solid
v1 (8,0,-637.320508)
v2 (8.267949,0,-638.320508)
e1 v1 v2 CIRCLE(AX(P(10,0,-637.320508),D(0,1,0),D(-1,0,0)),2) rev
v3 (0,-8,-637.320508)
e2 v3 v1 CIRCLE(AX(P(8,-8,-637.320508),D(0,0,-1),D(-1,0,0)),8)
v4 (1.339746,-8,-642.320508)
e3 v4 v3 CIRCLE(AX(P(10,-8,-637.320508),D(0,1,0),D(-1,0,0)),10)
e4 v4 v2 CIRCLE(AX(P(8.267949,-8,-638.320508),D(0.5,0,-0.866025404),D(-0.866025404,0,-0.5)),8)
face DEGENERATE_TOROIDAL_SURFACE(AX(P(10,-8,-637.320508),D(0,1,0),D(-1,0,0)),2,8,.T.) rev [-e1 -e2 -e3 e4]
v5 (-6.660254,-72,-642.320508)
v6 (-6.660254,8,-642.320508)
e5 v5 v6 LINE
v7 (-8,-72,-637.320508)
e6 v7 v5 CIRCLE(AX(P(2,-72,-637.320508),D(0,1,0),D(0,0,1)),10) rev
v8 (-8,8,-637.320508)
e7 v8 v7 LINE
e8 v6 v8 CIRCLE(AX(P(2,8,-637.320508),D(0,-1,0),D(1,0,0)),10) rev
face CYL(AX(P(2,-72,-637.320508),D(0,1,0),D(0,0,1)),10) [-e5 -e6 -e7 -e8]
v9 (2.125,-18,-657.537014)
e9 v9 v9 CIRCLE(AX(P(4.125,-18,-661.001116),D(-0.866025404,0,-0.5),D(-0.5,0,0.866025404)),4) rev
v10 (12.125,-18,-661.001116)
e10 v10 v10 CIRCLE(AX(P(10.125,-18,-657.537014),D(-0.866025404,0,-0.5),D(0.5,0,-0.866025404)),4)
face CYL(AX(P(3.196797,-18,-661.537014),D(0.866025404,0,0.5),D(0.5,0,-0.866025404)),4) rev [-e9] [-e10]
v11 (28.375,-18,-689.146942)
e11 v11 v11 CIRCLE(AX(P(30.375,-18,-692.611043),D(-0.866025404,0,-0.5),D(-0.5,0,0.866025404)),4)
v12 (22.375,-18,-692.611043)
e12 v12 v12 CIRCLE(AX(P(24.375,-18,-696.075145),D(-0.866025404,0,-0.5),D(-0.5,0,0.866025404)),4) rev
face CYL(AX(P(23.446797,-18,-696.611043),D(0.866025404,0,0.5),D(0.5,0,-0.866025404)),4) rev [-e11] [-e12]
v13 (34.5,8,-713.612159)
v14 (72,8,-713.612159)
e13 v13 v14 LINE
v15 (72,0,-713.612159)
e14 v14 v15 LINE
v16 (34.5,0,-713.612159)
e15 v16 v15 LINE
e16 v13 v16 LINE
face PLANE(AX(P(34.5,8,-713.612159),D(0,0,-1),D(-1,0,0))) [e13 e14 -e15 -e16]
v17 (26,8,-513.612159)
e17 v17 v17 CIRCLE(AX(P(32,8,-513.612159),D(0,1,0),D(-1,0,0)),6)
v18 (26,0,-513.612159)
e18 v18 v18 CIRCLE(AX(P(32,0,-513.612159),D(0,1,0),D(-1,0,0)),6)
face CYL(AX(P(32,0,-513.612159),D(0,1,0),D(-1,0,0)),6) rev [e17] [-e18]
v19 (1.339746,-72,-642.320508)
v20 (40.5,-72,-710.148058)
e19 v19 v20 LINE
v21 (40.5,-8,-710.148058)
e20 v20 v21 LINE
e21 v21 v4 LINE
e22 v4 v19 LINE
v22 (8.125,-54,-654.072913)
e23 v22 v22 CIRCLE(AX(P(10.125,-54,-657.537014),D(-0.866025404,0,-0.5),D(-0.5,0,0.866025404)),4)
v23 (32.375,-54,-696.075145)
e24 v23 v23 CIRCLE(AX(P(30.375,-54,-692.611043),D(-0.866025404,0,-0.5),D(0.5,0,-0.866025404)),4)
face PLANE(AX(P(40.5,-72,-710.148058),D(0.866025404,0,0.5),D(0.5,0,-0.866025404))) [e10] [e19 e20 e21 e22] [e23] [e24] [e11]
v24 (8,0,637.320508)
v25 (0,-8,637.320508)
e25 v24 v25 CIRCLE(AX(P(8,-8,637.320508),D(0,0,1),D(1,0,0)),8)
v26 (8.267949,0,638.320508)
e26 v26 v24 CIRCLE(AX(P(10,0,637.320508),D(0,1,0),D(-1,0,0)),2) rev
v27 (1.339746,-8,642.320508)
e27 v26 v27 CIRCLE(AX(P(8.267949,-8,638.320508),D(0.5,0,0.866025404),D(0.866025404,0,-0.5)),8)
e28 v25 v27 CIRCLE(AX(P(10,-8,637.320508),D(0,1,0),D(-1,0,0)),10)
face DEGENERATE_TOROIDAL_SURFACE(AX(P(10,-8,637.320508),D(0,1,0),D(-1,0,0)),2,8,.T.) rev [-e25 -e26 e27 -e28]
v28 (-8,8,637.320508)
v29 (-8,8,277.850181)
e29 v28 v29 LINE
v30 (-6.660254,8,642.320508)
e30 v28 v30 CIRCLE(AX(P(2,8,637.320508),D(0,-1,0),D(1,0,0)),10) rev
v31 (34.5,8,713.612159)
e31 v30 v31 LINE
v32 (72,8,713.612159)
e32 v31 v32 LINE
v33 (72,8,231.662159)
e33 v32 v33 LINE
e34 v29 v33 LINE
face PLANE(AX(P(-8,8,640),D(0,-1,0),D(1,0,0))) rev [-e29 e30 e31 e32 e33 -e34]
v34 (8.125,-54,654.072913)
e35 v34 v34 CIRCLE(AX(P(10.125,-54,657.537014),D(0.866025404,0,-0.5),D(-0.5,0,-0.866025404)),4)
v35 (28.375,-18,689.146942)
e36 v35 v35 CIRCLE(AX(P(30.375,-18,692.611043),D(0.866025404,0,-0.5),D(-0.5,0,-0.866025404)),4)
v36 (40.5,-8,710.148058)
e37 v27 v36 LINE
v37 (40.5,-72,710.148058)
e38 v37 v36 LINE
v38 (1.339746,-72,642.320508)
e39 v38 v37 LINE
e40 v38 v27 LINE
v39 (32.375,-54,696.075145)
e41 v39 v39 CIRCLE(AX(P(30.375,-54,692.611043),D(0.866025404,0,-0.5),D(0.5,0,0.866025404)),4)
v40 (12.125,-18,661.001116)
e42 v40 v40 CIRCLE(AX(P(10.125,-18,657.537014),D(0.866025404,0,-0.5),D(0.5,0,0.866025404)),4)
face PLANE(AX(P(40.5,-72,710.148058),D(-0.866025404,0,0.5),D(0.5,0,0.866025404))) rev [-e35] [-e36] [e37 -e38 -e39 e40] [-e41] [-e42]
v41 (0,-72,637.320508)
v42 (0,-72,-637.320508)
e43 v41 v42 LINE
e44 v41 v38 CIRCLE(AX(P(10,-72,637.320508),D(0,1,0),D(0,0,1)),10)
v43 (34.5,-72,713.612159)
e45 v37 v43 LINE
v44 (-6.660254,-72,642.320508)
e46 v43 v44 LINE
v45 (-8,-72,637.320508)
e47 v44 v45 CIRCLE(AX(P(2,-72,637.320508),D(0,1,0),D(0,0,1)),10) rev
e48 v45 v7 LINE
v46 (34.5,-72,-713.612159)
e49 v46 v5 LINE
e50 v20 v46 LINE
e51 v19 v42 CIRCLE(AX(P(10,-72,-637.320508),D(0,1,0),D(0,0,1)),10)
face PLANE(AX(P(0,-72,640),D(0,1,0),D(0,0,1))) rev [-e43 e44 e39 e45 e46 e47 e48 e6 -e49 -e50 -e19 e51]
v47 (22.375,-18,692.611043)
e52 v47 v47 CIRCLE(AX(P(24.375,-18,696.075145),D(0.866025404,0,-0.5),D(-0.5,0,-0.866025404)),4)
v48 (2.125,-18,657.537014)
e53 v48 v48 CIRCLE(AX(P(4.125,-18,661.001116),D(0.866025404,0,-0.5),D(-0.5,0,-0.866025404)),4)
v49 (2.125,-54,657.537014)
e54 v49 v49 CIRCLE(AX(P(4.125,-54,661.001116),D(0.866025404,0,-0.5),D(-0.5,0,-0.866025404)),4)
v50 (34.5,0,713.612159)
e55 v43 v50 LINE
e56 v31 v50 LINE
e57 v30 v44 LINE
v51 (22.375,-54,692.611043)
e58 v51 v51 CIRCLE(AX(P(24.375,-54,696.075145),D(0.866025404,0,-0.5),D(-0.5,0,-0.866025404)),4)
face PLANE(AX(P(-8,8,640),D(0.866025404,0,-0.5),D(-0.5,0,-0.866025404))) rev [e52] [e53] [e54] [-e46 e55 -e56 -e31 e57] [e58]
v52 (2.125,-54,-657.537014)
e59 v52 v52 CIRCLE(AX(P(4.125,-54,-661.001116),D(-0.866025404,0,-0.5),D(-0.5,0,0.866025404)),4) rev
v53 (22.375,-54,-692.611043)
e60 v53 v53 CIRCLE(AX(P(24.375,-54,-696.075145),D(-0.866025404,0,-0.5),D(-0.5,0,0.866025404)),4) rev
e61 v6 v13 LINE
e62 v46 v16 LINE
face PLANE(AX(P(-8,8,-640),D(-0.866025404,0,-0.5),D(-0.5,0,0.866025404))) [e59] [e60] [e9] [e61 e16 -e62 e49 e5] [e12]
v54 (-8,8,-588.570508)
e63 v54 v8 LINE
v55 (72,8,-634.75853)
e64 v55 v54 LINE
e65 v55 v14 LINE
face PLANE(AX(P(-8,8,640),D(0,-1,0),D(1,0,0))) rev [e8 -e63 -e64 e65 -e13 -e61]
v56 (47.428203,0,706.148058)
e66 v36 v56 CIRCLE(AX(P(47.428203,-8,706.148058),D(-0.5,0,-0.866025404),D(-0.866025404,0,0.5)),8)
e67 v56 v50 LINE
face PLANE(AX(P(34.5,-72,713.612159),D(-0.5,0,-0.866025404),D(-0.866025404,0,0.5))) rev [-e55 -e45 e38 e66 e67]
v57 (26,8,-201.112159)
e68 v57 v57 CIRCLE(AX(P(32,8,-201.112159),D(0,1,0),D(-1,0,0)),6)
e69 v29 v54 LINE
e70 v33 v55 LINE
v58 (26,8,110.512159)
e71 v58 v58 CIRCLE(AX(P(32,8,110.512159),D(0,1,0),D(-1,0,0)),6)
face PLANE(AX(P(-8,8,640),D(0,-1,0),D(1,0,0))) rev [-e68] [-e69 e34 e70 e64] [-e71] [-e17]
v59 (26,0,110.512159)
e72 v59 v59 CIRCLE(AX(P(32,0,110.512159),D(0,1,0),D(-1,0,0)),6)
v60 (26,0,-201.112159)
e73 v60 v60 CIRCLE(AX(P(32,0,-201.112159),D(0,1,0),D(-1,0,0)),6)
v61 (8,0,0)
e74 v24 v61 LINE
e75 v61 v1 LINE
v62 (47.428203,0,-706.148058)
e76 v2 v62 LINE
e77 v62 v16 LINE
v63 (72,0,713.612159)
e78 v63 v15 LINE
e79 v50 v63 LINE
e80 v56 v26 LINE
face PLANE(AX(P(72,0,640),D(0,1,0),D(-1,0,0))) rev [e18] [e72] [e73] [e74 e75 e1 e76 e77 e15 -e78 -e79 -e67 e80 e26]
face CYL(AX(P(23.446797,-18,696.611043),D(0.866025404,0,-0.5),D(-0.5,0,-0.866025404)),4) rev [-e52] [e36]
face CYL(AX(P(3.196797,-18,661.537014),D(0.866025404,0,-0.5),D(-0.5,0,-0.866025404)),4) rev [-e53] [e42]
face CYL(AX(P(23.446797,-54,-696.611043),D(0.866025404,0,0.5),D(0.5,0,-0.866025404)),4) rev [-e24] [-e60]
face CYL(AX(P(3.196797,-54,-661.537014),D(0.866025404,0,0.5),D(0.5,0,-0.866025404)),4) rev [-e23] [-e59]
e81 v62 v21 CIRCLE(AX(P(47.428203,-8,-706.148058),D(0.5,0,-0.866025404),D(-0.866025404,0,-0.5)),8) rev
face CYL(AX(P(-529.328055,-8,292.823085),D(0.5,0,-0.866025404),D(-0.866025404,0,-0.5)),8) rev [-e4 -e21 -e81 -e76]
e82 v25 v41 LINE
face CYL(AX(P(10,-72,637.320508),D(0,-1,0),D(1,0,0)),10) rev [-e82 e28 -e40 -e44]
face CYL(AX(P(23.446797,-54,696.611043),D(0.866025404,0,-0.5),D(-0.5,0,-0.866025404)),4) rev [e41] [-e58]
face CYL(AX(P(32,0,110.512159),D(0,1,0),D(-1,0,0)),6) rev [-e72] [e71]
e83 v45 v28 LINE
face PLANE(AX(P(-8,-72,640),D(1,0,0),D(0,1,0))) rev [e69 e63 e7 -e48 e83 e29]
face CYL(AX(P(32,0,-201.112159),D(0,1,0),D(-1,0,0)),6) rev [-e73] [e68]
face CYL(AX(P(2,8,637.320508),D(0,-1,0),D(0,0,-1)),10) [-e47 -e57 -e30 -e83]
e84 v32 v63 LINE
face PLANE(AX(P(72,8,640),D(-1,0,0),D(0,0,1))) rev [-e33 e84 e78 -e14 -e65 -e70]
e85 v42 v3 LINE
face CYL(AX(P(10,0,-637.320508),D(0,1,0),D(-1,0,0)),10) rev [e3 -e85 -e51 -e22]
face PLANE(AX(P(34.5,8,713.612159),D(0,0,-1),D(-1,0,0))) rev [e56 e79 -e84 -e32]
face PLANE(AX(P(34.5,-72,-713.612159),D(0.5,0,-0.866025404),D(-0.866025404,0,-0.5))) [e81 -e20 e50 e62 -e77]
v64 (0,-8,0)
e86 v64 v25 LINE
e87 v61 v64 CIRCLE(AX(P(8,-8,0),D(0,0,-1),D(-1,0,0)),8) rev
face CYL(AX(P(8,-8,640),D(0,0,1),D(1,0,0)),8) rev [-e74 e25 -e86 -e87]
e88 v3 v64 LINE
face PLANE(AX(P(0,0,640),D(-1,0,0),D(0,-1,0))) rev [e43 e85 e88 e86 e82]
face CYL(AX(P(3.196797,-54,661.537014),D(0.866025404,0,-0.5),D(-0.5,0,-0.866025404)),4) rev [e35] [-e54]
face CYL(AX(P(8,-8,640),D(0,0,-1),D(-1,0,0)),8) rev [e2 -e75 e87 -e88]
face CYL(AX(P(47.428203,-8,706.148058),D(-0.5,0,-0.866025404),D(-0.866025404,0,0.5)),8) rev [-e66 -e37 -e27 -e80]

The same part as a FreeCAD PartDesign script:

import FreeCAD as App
import Part
import Sketcher
from FreeCAD import Vector
Q = App.Units.Quantity


def edges_at(feature, points):
    """Names of the edges that pass closest to the given points."""
    edges = feature.Shape.Edges
    near = lambda p: min(range(len(edges)), key=lambda i: edges[i].distToShape(Part.Vertex(*p))[0])
    return sorted({f"Edge{near(p) + 1}" for p in points})


def add_polygon(sketch, points):
    """Adds a closed chain of lines whose ends are joined by coincident constraints."""
    first, n = sketch.GeometryCount, len(points)
    for a, b in zip(points, points[1:] + points[:1]):
        sketch.addGeometry(Part.LineSegment(App.Vector(*a, 0), App.Vector(*b, 0)), False)
    for i in range(n):
        sketch.addConstraint(Sketcher.Constraint("Coincident", first + i, 2, first + (i + 1) % n, 1))

doc = App.newDocument("Part")
body = doc.addObject("PartDesign::Body", "Body")

sketch1 = body.newObject("Sketcher::SketchObject", "Sketch")
sketch1.AttachmentSupport = (doc.getObject("XY_Plane"), [""])
sketch1.MapMode = "FlatFace"
add_polygon(sketch1, [(72, 8), (-8, 8), (-8, -72), (0, -72), (0, 0), (72, 0)])
sketch1.addConstraint([
    Sketcher.Constraint("Horizontal", 0),
    Sketcher.Constraint("Vertical", 1),
    Sketcher.Constraint("Horizontal", 2),
    Sketcher.Constraint("Vertical", 3),
    Sketcher.Constraint("Horizontal", 4),
    Sketcher.Constraint("Vertical", 5),
    Sketcher.Constraint("Coincident", 3, 2, -1, 1),
    Sketcher.Constraint("Equal", 0, 1),
    Sketcher.Constraint("Equal", 4, 3),
    Sketcher.Constraint("DistanceX", 0, 2, 0, 1, Q("80 mm")),
    Sketcher.Constraint("DistanceX", 2, 1, 2, 2, Q("8 mm")),
])
pad1 = body.newObject("PartDesign::Pad", "Pad")
pad1.Profile = sketch1
pad1.Length = 640

sketch2 = body.newObject("Sketcher::SketchObject", "Sketch001")
sketch2.AttachmentSupport = (doc.getObject("XZ_Plane"), [""])
sketch2.MapMode = "FlatFace"
add_polygon(sketch2, [(-8, 640), (34, 714), (72, 714), (72, 640)])
sketch2.addConstraint([
    Sketcher.Constraint("Horizontal", 1),
    Sketcher.Constraint("Vertical", 2),
    Sketcher.Constraint("Horizontal", 3),
    Sketcher.Constraint("DistanceX", 3, 2, 3, 1, Q("80 mm")),
    Sketcher.Constraint("Angle", 0, Q("60 deg")),
    Sketcher.Constraint("Distance", 0, Q("85 mm")),
    Sketcher.Constraint("DistanceX", -1, 1, 1, 2, Q("72 mm")),
    Sketcher.Constraint("DistanceY", -1, 1, 2, 2, Q("640 mm")),
])
pad2 = body.newObject("PartDesign::Pad", "Pad001")
pad2.Profile = sketch2
pad2.Length = 8
pad2.Reversed = True

sketch3 = body.newObject("Sketcher::SketchObject", "Sketch002")
sketch3.AttachmentSupport = (doc.getObject("XZ_Plane"), [""])
sketch3.MapMode = "FlatFace"
add_polygon(sketch3, [(34, 714), (-8, 640), (0, 640), (40, 710)])
sketch3.addConstraint([
    Sketcher.Constraint("Horizontal", 1),
    Sketcher.Constraint("PointOnObject", 1, 2, -2),
    Sketcher.Constraint("Parallel", 0, 2),
    Sketcher.Constraint("Perpendicular", 2, 3),
    Sketcher.Constraint("DistanceX", 1, 1, 1, 2, Q("8 mm")),
    Sketcher.Constraint("Angle", 0, Q("-120 deg")),
    Sketcher.Constraint("Distance", 0, Q("85 mm")),
    Sketcher.Constraint("DistanceY", -1, 1, 0, 2, Q("640 mm")),
])
pad3 = body.newObject("PartDesign::Pad", "Pad002")
pad3.Profile = sketch3
pad3.Length = 72

sketch4 = body.newObject("Sketcher::SketchObject", "Sketch003")
sketch4.Placement = App.Placement(Vector(-277.128129, 0, 160), App.Rotation(Vector(-0.5, 0, -0.866025404), Vector(0, 1, 0), Vector(0.866025404, 0, -0.5), "ZXY"))
sketch4.addGeometry([
    Part.Circle(Vector(-615, -18, 0), Vector(0, 0, 1), 4),
    Part.Circle(Vector(-574.5, -18, 0), Vector(0, 0, 1), 4),
    Part.Circle(Vector(-574.5, -54, 0), Vector(0, 0, 1), 4),
    Part.Circle(Vector(-615, -54, 0), Vector(0, 0, 1), 4),
], False)
sketch4.addConstraint([
    Sketcher.Constraint("Equal", 0, 1),
    Sketcher.Constraint("Equal", 1, 2),
    Sketcher.Constraint("Equal", 2, 3),
    Sketcher.Constraint("Horizontal", 0, 3, 1, 3),
    Sketcher.Constraint("Horizontal", 2, 3, 3, 3),
    Sketcher.Constraint("Vertical", 1, 3, 2, 3),
    Sketcher.Constraint("Vertical", 0, 3, 3, 3),
    Sketcher.Constraint("Diameter", 0, Q("8 mm")),
    Sketcher.Constraint("DistanceY", 0, 3, -1, 1, Q("18 mm")),
    Sketcher.Constraint("DistanceY", 2, 3, -1, 1, Q("54 mm")),
    Sketcher.Constraint("DistanceX", 0, 3, 1, 3, Q("40.5 mm")),
    Sketcher.Constraint("DistanceX", 0, 3, -1, 1, Q("615.006259 mm")),
])
pocket1 = body.newObject("PartDesign::Pocket", "Pocket")
pocket1.Profile = sketch4
pocket1.Length = 8
doc.recompute()

fillet = body.newObject("PartDesign::Fillet", "Fillet")
fillet.Base = (pocket1, edges_at(pocket1, [(0, -36, 640), (-8, -32, 640)]))
fillet.Radius = 10
doc.recompute()

fillet2 = body.newObject("PartDesign::Fillet", "Fillet001")
fillet2.Base = (fillet, edges_at(fillet, [(20.92, 0, 676.234), (0, 0, 318.66), (0.341, 0, 639.909)]))
fillet2.Radius = 8
doc.recompute()

mirrored = body.newObject("PartDesign::Mirrored", "Mirrored")
mirrored.Originals = [pad1, pad2, pad3, pocket1]
mirrored.MirrorPlane = (doc.getObject("XY_Plane"), [""])
body.Tip = mirrored
doc.recompute()

fillet3 = body.newObject("PartDesign::Fillet", "Fillet002")
fillet3.Base = (mirrored, edges_at(mirrored, [(0, -36, -640), (-8, -32, -640)]))
fillet3.Radius = 10
doc.recompute()

fillet4 = body.newObject("PartDesign::Fillet", "Fillet003")
fillet4.Base = (fillet3, edges_at(fillet3, [(20.92, 0, -676.234), (0, 0, -318.66), (0.341, 0, -639.909)]))
fillet4.Radius = 8

sketch5 = body.newObject("Sketcher::SketchObject", "Sketch004")
sketch5.AttachmentSupport = (doc.getObject("XZ_Plane"), [""])
sketch5.MapMode = "FlatFace"
sketch5.AttachmentOffset = App.Placement(Vector(0, 0, -8), App.Rotation())
sketch5.addGeometry([
    Part.Circle(Vector(32, -514, 0), Vector(0, 0, 1), 6),
    Part.Circle(Vector(32, -201, 0), Vector(0, 0, 1), 6),
    Part.Circle(Vector(32, 111, 0), Vector(0, 0, 1), 6),
], False)
sketch5.addConstraint([
    Sketcher.Constraint("Equal", 0, 1),
    Sketcher.Constraint("Equal", 1, 2),
    Sketcher.Constraint("Vertical", 0, 3, 1, 3),
    Sketcher.Constraint("Vertical", 1, 3, 2, 3),
    Sketcher.Constraint("Diameter", 0, Q("12 mm")),
    Sketcher.Constraint("DistanceX", -1, 1, 0, 3, Q("32 mm")),
    Sketcher.Constraint("DistanceY", 0, 3, 1, 3, Q("312.5 mm")),
    Sketcher.Constraint("DistanceY", 0, 3, -1, 1, Q("513.612159 mm")),
    Sketcher.Constraint("DistanceY", -1, 1, 2, 3, Q("110.512159 mm")),
])
pocket2 = body.newObject("PartDesign::Pocket", "Pocket001")
pocket2.Profile = sketch5
pocket2.Length = 8
pocket2.Reversed = True

doc.recompute()
